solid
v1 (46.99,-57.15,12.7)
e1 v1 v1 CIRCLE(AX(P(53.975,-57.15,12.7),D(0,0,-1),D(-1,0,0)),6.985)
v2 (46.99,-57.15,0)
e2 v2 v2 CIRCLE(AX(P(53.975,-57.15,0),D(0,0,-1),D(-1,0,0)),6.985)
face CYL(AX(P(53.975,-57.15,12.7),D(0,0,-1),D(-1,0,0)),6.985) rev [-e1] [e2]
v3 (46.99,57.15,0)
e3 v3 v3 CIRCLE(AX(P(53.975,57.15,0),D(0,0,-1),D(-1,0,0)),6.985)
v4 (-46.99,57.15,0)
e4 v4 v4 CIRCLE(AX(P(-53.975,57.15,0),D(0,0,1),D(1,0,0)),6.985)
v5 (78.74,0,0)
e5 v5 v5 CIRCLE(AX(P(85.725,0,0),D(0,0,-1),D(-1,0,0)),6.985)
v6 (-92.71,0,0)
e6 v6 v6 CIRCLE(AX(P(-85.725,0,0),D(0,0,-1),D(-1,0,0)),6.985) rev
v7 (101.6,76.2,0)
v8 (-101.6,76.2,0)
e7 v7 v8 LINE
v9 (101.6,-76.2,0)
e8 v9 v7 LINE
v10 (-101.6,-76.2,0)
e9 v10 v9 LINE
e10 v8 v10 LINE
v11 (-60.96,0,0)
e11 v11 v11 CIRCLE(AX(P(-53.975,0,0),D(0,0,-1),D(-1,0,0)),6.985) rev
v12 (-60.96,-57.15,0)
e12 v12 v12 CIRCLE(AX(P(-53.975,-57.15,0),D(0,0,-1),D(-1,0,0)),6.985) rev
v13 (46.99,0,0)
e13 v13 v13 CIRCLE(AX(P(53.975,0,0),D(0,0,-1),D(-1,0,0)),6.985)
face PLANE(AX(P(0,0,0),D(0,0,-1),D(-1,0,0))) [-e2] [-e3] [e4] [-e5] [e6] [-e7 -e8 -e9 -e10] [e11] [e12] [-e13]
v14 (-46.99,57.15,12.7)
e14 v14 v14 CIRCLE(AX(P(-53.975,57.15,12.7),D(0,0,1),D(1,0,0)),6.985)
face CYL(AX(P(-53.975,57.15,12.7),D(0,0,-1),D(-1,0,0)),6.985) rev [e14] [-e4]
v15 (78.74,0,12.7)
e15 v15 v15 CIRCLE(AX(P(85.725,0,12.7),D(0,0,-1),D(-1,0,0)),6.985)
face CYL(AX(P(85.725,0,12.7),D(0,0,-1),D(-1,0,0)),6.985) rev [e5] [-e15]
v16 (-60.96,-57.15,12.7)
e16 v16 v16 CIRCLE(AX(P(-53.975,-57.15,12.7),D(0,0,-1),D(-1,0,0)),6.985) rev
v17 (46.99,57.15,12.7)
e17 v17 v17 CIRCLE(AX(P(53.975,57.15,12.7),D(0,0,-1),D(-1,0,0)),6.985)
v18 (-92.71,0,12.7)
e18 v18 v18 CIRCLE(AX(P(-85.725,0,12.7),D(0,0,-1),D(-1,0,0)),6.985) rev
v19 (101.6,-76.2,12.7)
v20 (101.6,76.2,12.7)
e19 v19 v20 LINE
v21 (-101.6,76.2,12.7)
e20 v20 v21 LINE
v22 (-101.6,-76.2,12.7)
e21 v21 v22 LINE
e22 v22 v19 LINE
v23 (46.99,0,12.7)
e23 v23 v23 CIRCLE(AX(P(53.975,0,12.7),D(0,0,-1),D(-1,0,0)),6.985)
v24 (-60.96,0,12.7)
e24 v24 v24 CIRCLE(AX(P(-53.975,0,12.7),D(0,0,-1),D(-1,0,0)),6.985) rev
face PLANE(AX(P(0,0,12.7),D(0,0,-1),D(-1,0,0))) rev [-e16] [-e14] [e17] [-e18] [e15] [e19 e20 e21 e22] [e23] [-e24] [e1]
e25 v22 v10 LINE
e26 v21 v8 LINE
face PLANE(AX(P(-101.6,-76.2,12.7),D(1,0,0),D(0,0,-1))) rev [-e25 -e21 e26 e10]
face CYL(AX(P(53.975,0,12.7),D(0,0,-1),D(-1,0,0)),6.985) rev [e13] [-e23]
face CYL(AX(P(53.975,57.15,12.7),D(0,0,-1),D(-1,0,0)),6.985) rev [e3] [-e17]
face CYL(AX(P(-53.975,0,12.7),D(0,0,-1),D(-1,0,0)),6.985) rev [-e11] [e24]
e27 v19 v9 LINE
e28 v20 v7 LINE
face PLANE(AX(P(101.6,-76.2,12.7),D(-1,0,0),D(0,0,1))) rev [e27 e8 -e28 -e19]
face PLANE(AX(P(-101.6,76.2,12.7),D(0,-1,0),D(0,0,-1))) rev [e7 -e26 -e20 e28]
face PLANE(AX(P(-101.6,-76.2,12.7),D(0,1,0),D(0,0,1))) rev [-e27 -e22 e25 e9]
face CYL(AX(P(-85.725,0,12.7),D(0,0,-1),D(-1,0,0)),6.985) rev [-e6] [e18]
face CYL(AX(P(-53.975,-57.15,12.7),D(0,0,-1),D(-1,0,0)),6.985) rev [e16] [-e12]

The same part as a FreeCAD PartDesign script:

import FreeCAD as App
import Part
import Sketcher
Q = App.Units.Quantity


def add_polygon(sketch, points):
    """Adds a closed chain of lines whose ends are joined by coincident constraints."""
    first, n = sketch.GeometryCount, len(points)
    for a, b in zip(points, points[1:] + points[:1]):
        sketch.addGeometry(Part.LineSegment(App.Vector(*a, 0), App.Vector(*b, 0)), False)
    for i in range(n):
        sketch.addConstraint(Sketcher.Constraint("Coincident", first + i, 2, first + (i + 1) % n, 1))

doc = App.newDocument("Part")
body = doc.addObject("PartDesign::Body", "Body")

sketch1 = body.newObject("Sketcher::SketchObject", "Sketch")
sketch1.AttachmentSupport = (doc.getObject("XY_Plane"), [""])
sketch1.MapMode = "FlatFace"
add_polygon(sketch1, [(-102, 76), (-102, -76), (102, -76), (102, 76)])
sketch1.addConstraint(Sketcher.Constraint("Vertical", 0))
sketch1.addConstraint(Sketcher.Constraint("Horizontal", 1))
sketch1.addConstraint(Sketcher.Constraint("Vertical", 2))
sketch1.addConstraint(Sketcher.Constraint("Horizontal", 3))
sketch1.addConstraint(Sketcher.Constraint("Symmetric", 0, 2, 2, 2, -1, 1))
sketch1.addConstraint(Sketcher.Constraint("DistanceX", 1, 1, 1, 2, Q("8 in")))
sketch1.addConstraint(Sketcher.Constraint("DistanceY", 0, 2, 0, 1, Q("6 in")))
pad1 = body.newObject("PartDesign::Pad", "Pad")
pad1.Profile = sketch1
pad1.Length = Q("0.5 in")

sketch2 = body.newObject("Sketcher::SketchObject", "Sketch001")
sketch2.AttachmentSupport = (doc.getObject("XY_Plane"), [""])
sketch2.MapMode = "FlatFace"
sketch2.addGeometry(Part.Circle(App.Vector(-54, 0, 0), App.Vector(0, 0, 1), 7), False)
sketch2.addGeometry(Part.Circle(App.Vector(-86, 0, 0), App.Vector(0, 0, 1), 7), False)
sketch2.addGeometry(Part.Circle(App.Vector(-54, -57, 0), App.Vector(0, 0, 1), 7), False)
sketch2.addGeometry(Part.Circle(App.Vector(54, 0, 0), App.Vector(0, 0, 1), 7), False)
sketch2.addGeometry(Part.Circle(App.Vector(-54, 57, 0), App.Vector(0, 0, 1), 7), False)
sketch2.addGeometry(Part.Circle(App.Vector(54, -57, 0), App.Vector(0, 0, 1), 7), False)
sketch2.addGeometry(Part.Circle(App.Vector(86, 0, 0), App.Vector(0, 0, 1), 7), False)
sketch2.addGeometry(Part.Circle(App.Vector(54, 57, 0), App.Vector(0, 0, 1), 7), False)
sketch2.addConstraint(Sketcher.Constraint("Equal", 0, 1))
sketch2.addConstraint(Sketcher.Constraint("Equal", 1, 2))
sketch2.addConstraint(Sketcher.Constraint("Equal", 2, 3))
sketch2.addConstraint(Sketcher.Constraint("Equal", 3, 4))
sketch2.addConstraint(Sketcher.Constraint("Equal", 4, 5))
sketch2.addConstraint(Sketcher.Constraint("Equal", 5, 6))
sketch2.addConstraint(Sketcher.Constraint("Equal", 6, 7))
sketch2.addConstraint(Sketcher.Constraint("Symmetric", 0, 3, 3, 3, -1, 1))
sketch2.addConstraint(Sketcher.Constraint("Symmetric", 4, 3, 5, 3, -1, 1))
sketch2.addConstraint(Sketcher.Constraint("Symmetric", 1, 3, 6, 3, -1, 1))
sketch2.addConstraint(Sketcher.Constraint("Symmetric", 2, 3, 7, 3, -1, 1))
sketch2.addConstraint(Sketcher.Constraint("Symmetric", 2, 3, 5, 3, -2))
sketch2.addConstraint(Sketcher.Constraint("PointOnObject", 0, 3, -1))
sketch2.addConstraint(Sketcher.Constraint("PointOnObject", 1, 3, -1))
sketch2.addConstraint(Sketcher.Constraint("Vertical", 0, 3, 2, 3))
sketch2.addConstraint(Sketcher.Constraint("Diameter", 0, Q("0.55 in")))
sketch2.addConstraint(Sketcher.Constraint("DistanceX", 1, 3, 3, 3, Q("5.5 in")))
sketch2.addConstraint(Sketcher.Constraint("DistanceY", 2, 3, 4, 3, Q("4.5 in")))
sketch2.addConstraint(Sketcher.Constraint("DistanceX", 1, 3, 0, 3, Q("1.25 in")))
pocket1 = body.newObject("PartDesign::Pocket", "Pocket")
pocket1.Profile = sketch2
pocket1.Type = "ThroughAll"
pocket1.Reversed = True

doc.recompute()
